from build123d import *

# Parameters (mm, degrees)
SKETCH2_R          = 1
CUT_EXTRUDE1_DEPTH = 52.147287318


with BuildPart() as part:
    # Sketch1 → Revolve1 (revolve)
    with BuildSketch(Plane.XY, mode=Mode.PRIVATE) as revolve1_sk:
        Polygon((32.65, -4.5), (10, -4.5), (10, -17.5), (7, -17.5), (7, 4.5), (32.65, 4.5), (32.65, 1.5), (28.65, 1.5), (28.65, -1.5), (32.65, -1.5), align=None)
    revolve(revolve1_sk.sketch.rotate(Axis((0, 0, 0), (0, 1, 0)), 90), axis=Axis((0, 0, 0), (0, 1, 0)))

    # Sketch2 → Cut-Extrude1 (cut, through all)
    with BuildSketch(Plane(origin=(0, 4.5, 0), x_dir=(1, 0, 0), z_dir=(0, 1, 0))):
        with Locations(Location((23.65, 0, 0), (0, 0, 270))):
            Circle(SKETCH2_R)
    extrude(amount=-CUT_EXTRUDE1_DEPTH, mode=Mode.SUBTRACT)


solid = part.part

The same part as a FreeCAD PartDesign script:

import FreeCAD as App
import Part
import Sketcher
Q = App.Units.Quantity


def add_polygon(sketch, points):
    """Adds a closed chain of lines whose ends are joined by coincident constraints."""
    first, n = sketch.GeometryCount, len(points)
    for a, b in zip(points, points[1:] + points[:1]):
        sketch.addGeometry(Part.LineSegment(App.Vector(*a, 0), App.Vector(*b, 0)), False)
    for i in range(n):
        sketch.addConstraint(Sketcher.Constraint("Coincident", first + i, 2, first + (i + 1) % n, 1))

doc = App.newDocument("Part")
body = doc.addObject("PartDesign::Body", "Body")

sketch1 = body.newObject("Sketcher::SketchObject", "Sketch")
sketch1.AttachmentSupport = (doc.getObject("XY_Plane"), [""])
sketch1.MapMode = "FlatFace"
add_polygon(sketch1, [(10, -4.5), (32.6, -4.5), (32.6, -1.5), (28.6, -1.5), (28.6, 1.5), (32.6, 1.5), (32.6, 4.5), (7, 4.5), (7, -17.5), (10, -17.5)])
sketch1.addConstraint([
    Sketcher.Constraint("Horizontal", 0),
    Sketcher.Constraint("Vertical", 1),
    Sketcher.Constraint("Horizontal", 2),
    Sketcher.Constraint("Vertical", 3),
    Sketcher.Constraint("Horizontal", 4),
    Sketcher.Constraint("Vertical", 5),
    Sketcher.Constraint("Horizontal", 6),
    Sketcher.Constraint("Vertical", 7),
    Sketcher.Constraint("Horizontal", 8),
    Sketcher.Constraint("Vertical", 9),
    Sketcher.Constraint("Symmetric", 1, 2, 4, 2, -1),
    Sketcher.Constraint("Equal", 8, 1),
    Sketcher.Constraint("Equal", 1, 3),
    Sketcher.Constraint("Equal", 3, 5),
    Sketcher.Constraint("DistanceX", 2, 2, 2, 1, Q("4 mm")),
    Sketcher.Constraint("DistanceX", 8, 1, 8, 2, Q("3 mm")),
    Sketcher.Constraint("DistanceY", 7, 2, 7, 1, Q("22 mm")),
    Sketcher.Constraint("DistanceX", -1, 1, 6, 2, Q("7 mm")),
    Sketcher.Constraint("DistanceX", 0, 1, 0, 2, Q("22.65 mm")),
])
revolution = body.newObject("PartDesign::Revolution", "Revolution")
revolution.Profile = sketch1
revolution.ReferenceAxis = (sketch1, ["V_Axis"])
revolution.Angle = 360

sketch2 = body.newObject("Sketcher::SketchObject", "Sketch001")
sketch2.AttachmentSupport = (doc.getObject("XZ_Plane"), [""])
sketch2.MapMode = "FlatFace"
sketch2.AttachmentOffset = App.Placement(App.Vector(0, 0, -4.5), App.Rotation())
sketch2.addGeometry(Part.Circle(App.Vector(23.6, 0, 0), App.Vector(0, 0, 1), 1), False)
sketch2.addConstraint([
    Sketcher.Constraint("PointOnObject", 0, 3, -1),
    Sketcher.Constraint("Diameter", 0, Q("2 mm")),
    Sketcher.Constraint("DistanceX", -1, 1, 0, 3, Q("23.65 mm")),
])
pocket1 = body.newObject("PartDesign::Pocket", "Pocket")
pocket1.Profile = sketch2
pocket1.Type = "ThroughAll"
pocket1.Reversed = True

doc.recompute()
